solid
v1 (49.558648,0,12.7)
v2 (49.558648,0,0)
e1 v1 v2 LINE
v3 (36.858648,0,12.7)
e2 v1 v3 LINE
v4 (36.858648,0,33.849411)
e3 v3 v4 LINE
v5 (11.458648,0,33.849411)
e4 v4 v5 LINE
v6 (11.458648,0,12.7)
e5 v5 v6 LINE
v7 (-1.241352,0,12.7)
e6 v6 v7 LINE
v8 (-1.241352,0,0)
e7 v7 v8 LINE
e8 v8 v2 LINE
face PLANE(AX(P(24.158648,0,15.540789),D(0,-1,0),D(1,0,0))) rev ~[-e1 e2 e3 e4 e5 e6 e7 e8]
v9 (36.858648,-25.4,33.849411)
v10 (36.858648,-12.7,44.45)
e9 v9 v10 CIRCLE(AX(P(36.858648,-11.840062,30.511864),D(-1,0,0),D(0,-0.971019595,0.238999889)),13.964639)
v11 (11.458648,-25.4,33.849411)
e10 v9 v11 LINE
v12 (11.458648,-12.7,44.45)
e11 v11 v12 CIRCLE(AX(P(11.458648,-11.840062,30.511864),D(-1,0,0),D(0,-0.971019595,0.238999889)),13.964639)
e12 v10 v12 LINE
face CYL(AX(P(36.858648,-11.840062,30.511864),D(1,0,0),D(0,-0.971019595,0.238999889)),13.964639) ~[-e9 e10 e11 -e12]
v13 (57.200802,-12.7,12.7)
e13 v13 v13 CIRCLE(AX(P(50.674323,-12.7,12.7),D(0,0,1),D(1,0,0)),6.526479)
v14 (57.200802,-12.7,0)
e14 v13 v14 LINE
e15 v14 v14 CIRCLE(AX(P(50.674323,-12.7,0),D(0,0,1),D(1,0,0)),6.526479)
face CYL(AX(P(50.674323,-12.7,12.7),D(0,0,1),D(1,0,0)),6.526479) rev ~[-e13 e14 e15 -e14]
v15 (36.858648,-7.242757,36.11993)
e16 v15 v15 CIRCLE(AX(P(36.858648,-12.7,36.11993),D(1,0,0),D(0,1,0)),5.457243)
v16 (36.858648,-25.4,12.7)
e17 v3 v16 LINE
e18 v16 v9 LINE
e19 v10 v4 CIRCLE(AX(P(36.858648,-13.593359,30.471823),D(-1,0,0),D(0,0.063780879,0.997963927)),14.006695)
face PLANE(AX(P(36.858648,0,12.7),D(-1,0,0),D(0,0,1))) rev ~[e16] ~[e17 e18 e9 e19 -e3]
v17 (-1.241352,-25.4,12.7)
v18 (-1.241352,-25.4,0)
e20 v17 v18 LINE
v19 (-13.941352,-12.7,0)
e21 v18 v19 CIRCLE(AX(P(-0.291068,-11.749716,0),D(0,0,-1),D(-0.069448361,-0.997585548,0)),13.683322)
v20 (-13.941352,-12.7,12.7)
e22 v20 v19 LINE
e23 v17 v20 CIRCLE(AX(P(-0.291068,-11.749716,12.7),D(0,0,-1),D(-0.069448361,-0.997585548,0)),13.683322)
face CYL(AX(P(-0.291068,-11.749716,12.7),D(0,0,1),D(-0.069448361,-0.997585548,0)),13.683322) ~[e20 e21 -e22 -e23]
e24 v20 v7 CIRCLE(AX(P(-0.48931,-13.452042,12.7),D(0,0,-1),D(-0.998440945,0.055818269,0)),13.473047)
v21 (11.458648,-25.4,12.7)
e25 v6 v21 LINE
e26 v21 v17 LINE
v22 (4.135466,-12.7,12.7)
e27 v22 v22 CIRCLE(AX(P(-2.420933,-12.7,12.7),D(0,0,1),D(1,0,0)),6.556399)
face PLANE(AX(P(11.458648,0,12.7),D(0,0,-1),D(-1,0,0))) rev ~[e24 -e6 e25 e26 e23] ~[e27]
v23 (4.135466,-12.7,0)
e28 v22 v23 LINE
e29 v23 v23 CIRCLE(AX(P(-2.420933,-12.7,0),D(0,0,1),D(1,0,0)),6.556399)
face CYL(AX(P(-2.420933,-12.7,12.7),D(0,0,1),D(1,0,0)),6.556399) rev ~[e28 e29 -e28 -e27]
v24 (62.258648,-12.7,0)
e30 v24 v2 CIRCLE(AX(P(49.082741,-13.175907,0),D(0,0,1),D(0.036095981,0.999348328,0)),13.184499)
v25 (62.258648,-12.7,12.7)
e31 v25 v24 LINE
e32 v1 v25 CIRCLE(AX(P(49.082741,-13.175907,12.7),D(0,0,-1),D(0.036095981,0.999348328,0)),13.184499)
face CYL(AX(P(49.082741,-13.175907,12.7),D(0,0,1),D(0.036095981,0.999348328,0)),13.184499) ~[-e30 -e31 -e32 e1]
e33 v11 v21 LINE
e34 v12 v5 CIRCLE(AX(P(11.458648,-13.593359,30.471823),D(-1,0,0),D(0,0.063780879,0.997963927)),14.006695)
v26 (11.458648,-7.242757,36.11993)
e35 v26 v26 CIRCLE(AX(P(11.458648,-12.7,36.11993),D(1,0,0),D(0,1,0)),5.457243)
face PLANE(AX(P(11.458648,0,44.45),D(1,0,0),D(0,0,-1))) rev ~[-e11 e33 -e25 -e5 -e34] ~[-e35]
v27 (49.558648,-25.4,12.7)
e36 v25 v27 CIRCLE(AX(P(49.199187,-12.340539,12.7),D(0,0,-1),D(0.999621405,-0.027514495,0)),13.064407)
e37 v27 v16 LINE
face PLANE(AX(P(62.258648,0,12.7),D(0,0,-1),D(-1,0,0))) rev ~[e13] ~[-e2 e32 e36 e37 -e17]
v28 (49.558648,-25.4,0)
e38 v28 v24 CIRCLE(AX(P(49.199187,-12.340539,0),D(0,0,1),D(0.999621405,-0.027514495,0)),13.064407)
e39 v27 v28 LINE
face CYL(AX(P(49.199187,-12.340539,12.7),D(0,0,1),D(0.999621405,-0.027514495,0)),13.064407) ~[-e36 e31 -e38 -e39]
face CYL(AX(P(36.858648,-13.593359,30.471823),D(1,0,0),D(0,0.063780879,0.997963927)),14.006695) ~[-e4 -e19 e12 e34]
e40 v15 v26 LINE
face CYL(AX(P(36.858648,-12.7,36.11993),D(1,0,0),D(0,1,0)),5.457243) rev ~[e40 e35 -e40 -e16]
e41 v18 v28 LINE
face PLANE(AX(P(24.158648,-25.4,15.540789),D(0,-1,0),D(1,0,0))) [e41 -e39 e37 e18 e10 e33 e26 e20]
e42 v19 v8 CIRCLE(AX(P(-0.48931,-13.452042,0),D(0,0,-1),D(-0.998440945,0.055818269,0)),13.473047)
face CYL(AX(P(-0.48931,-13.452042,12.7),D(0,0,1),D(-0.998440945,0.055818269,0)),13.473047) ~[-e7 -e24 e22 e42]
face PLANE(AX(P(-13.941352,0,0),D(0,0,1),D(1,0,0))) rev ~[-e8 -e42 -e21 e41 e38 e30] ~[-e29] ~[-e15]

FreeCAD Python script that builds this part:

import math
import FreeCAD as App
import Part
import Sketcher

V = App.Vector
Q = App.Units.Quantity


def add_polygon(sketch, points):
    """Adds a closed chain of lines whose ends are joined by coincident constraints."""
    first, n = sketch.GeometryCount, len(points)
    for a, b in zip(points, points[1:] + points[:1]):
        sketch.addGeometry(Part.LineSegment(App.Vector(*a, 0), App.Vector(*b, 0)), False)
    for i in range(n):
        sketch.addConstraint(Sketcher.Constraint("Coincident", first + i, 2, first + (i + 1) % n, 1))

doc = App.newDocument("Part")
body = doc.addObject("PartDesign::Body", "Body")

# Sketch on XZ plane
sketch1 = body.newObject("Sketcher::SketchObject", "Sketch")
sketch1.AttachmentSupport = (doc.getObject("XZ_Plane"), [""])
sketch1.MapMode = "FlatFace"
add_polygon(sketch1, [(-14, 13), (-14, 0), (62, 0), (62, 13), (37, 13), (37, 44), (11, 44), (11, 13)])  # lines 0-7
sketch1.addConstraint(Sketcher.Constraint("Vertical", 0))
sketch1.addConstraint(Sketcher.Constraint("Horizontal", 1))
sketch1.addConstraint(Sketcher.Constraint("Vertical", 2))
sketch1.addConstraint(Sketcher.Constraint("Horizontal", 3))
sketch1.addConstraint(Sketcher.Constraint("Vertical", 4))
sketch1.addConstraint(Sketcher.Constraint("Horizontal", 5))
sketch1.addConstraint(Sketcher.Constraint("Vertical", 6))
sketch1.addConstraint(Sketcher.Constraint("Horizontal", 7))
sketch1.addConstraint(Sketcher.Constraint("PointOnObject", 0, 2, -1))
sketch1.addConstraint(Sketcher.Constraint("Horizontal", 3, 2, 6, 2))
sketch1.addConstraint(Sketcher.Constraint("Equal", 3, 5))
sketch1.addConstraint(Sketcher.Constraint("Equal", 5, 7))
sketch1.addConstraint(Sketcher.Constraint("DistanceX", 1, 1, 1, 2, Q("3 in")))
sketch1.addConstraint(Sketcher.Constraint("DistanceY", 0, 2, 0, 1, Q("0.5 in")))
sketch1.addConstraint(Sketcher.Constraint("DistanceY", 4, 1, 4, 2, Q("1.25 in")))
sketch1.addConstraint(Sketcher.Constraint("DistanceX", -1, 1, 3, 2, Q("36.858648 mm")))
pad1 = body.newObject("PartDesign::Pad", "Pad")
pad1.Profile = sketch1
pad1.Length = Q("1 in")

# Sketch on YZ plane
sketch2 = body.newObject("Sketcher::SketchObject", "Sketch001")
sketch2.AttachmentSupport = (doc.getObject("YZ_Plane"), [""])
sketch2.MapMode = "FlatFace"
sketch2.AttachmentOffset = App.Placement(V(0, 0, 36.858648), App.Rotation())
sketch2.addGeometry(Part.ArcOfCircle(Part.Circle(V(-12, 31, 0), V(0, 0, 1), 14), math.radians(94), math.radians(166)), False)
sketch2.addGeometry(Part.LineSegment(V(-13, 44, 0), V(-25, 44, 0)), False)
sketch2.addGeometry(Part.LineSegment(V(-25, 44, 0), V(-25, 34, 0)), False)
sketch2.addGeometry(Part.LineSegment(V(0, 44, 0), V(-13, 44, 0)), False)
sketch2.addGeometry(Part.ArcOfCircle(Part.Circle(V(-14, 30, 0), V(0, 0, 1), 14), math.radians(14), math.radians(86)), False)
sketch2.addGeometry(Part.LineSegment(V(0, 34, 0), V(0, 44, 0)), False)
sketch2.addConstraint(Sketcher.Constraint("Coincident", 0, 1, 1, 1))
sketch2.addConstraint(Sketcher.Constraint("Coincident", 1, 2, 2, 1))
sketch2.addConstraint(Sketcher.Constraint("Coincident", 2, 2, 0, 2))
sketch2.addConstraint(Sketcher.Constraint("Coincident", 3, 2, 4, 2))
sketch2.addConstraint(Sketcher.Constraint("Coincident", 4, 1, 5, 1))
sketch2.addConstraint(Sketcher.Constraint("Coincident", 5, 2, 3, 1))
sketch2.addConstraint(Sketcher.Constraint("Horizontal", 1))
sketch2.addConstraint(Sketcher.Constraint("Vertical", 2))
sketch2.addConstraint(Sketcher.Constraint("Horizontal", 3))
sketch2.addConstraint(Sketcher.Constraint("Vertical", 5))
sketch2.addConstraint(Sketcher.Constraint("Coincident", 3, 2, 0, 1))
sketch2.addConstraint(Sketcher.Constraint("PointOnObject", 4, 1, -2))
sketch2.addConstraint(Sketcher.Constraint("Horizontal", 2, 2, 4, 1))
sketch2.addConstraint(Sketcher.Constraint("Equal", 1, 3))
sketch2.addConstraint(Sketcher.Constraint("DistanceX", 1, 2, 1, 1, Q("0.5 in")))
sketch2.addConstraint(Sketcher.Constraint("DistanceY", -1, 1, 0, 1, Q("1.75 in")))
sketch2.addConstraint(Sketcher.Constraint("Radius", 0, Q("13.964639 mm")))
sketch2.addConstraint(Sketcher.Constraint("Radius", 4, Q("14.006695 mm")))
sketch2.addConstraint(Sketcher.Constraint("DistanceY", 2, 2, 2, 1, Q("10.600589 mm")))
pocket1 = body.newObject("PartDesign::Pocket", "Pocket")
pocket1.Profile = sketch2
pocket1.Length = Q("1 in")

# Sketch on YZ plane
sketch3 = body.newObject("Sketcher::SketchObject", "Sketch002")
sketch3.AttachmentSupport = (doc.getObject("YZ_Plane"), [""])
sketch3.MapMode = "FlatFace"
sketch3.AttachmentOffset = App.Placement(V(0, 0, 36.858648), App.Rotation())
sketch3.addGeometry(Part.Circle(V(-13, 36, 0), V(0, 0, 1), 5), False)
sketch3.addConstraint(Sketcher.Constraint("DistanceX", 0, 3, -1, 1, Q("0.5 in")))
sketch3.addConstraint(Sketcher.Constraint("Diameter", 0, Q("10.914486 mm")))
sketch3.addConstraint(Sketcher.Constraint("DistanceY", -1, 1, 0, 3, Q("36.11993 mm")))
pocket2 = body.newObject("PartDesign::Pocket", "Pocket001")
pocket2.Profile = sketch3
pocket2.Length = Q("1 in")

# Sketch on XY plane
sketch4 = body.newObject("Sketcher::SketchObject", "Sketch003")
sketch4.AttachmentSupport = (doc.getObject("XY_Plane"), [""])
sketch4.MapMode = "FlatFace"
sketch4.AttachmentOffset = App.Placement(V(0, 0, 0.5 * 25.4), App.Rotation())
sketch4.addGeometry(Part.LineSegment(V(-14, 0, 0), V(-14, -13, 0)), False)
sketch4.addGeometry(Part.ArcOfCircle(Part.Circle(V(0, -13, 0), V(0, 0, 1), 13), math.radians(93), math.radians(177)), False)
sketch4.addGeometry(Part.LineSegment(V(-1, 0, 0), V(-14, 0, 0)), False)
sketch4.addGeometry(Part.ArcOfCircle(Part.Circle(V(0, -12, 0), V(0, 0, 1), 14), math.radians(-176), math.radians(-94)), False)
sketch4.addGeometry(Part.LineSegment(V(-14, -13, 0), V(-14, -25, 0)), False)
sketch4.addGeometry(Part.LineSegment(V(-14, -25, 0), V(-1, -25, 0)), False)
sketch4.addGeometry(Part.Circle(V(-2, -13, 0), V(0, 0, 1), 7), False)
sketch4.addConstraint(Sketcher.Constraint("Coincident", 0, 2, 1, 2))
sketch4.addConstraint(Sketcher.Constraint("Coincident", 1, 1, 2, 1))
sketch4.addConstraint(Sketcher.Constraint("Coincident", 2, 2, 0, 1))
sketch4.addConstraint(Sketcher.Constraint("Coincident", 3, 1, 4, 1))
sketch4.addConstraint(Sketcher.Constraint("Coincident", 4, 2, 5, 1))
sketch4.addConstraint(Sketcher.Constraint("Coincident", 5, 2, 3, 2))
sketch4.addConstraint(Sketcher.Constraint("Vertical", 0))
sketch4.addConstraint(Sketcher.Constraint("Horizontal", 2))
sketch4.addConstraint(Sketcher.Constraint("Vertical", 4))
sketch4.addConstraint(Sketcher.Constraint("Horizontal", 5))
sketch4.addConstraint(Sketcher.Constraint("Coincident", 3, 1, 0, 2))
sketch4.addConstraint(Sketcher.Constraint("PointOnObject", 1, 1, -1))
sketch4.addConstraint(Sketcher.Constraint("Horizontal", 6, 3, 0, 2))
sketch4.addConstraint(Sketcher.Constraint("Vertical", 1, 1, 5, 2))
sketch4.addConstraint(Sketcher.Constraint("Equal", 5, 0))
sketch4.addConstraint(Sketcher.Constraint("Equal", 0, 4))
sketch4.addConstraint(Sketcher.Constraint("DistanceX", 2, 2, 2, 1, Q("0.5 in")))
sketch4.addConstraint(Sketcher.Constraint("Diameter", 6, Q("13.112798 mm")))
sketch4.addConstraint(Sketcher.Constraint("Radius", 1, Q("13.473047 mm")))
sketch4.addConstraint(Sketcher.Constraint("Radius", 3, Q("13.683322 mm")))
sketch4.addConstraint(Sketcher.Constraint("DistanceX", 1, 3, -1, 1, Q("0.48931 mm")))
sketch4.addConstraint(Sketcher.Constraint("DistanceX", 0, 2, 6, 3, Q("11.520419 mm")))
pocket3 = body.newObject("PartDesign::Pocket", "Pocket002")
pocket3.Profile = sketch4
pocket3.Length = Q("0.5 in")

# Sketch on XY plane
sketch5 = body.newObject("Sketcher::SketchObject", "Sketch004")
sketch5.AttachmentSupport = (doc.getObject("XY_Plane"), [""])
sketch5.MapMode = "FlatFace"
sketch5.AttachmentOffset = App.Placement(V(0, 0, 0.5 * 25.4), App.Rotation())
sketch5.addGeometry(Part.Circle(V(51, -13, 0), V(0, 0, 1), 7), False)
sketch5.addGeometry(Part.ArcOfCircle(Part.Circle(V(49, -13, 0), V(0, 0, 1), 13), math.radians(2), math.radians(88)), False)
sketch5.addGeometry(Part.LineSegment(V(62, -13, 0), V(62, 0, 0)), False)
sketch5.addGeometry(Part.LineSegment(V(62, 0, 0), V(50, 0, 0)), False)
sketch5.addGeometry(Part.LineSegment(V(62, -25, 0), V(62, -13, 0)), False)
sketch5.addGeometry(Part.ArcOfCircle(Part.Circle(V(49, -12, 0), V(0, 0, 1), 13), math.radians(-88), math.radians(-2)), False)
sketch5.addGeometry(Part.LineSegment(V(50, -25, 0), V(62, -25, 0)), False)
sketch5.addConstraint(Sketcher.Constraint("Coincident", 1, 1, 2, 1))
sketch5.addConstraint(Sketcher.Constraint("Coincident", 2, 2, 3, 1))
sketch5.addConstraint(Sketcher.Constraint("Coincident", 3, 2, 1, 2))
sketch5.addConstraint(Sketcher.Constraint("Coincident", 4, 2, 5, 2))
sketch5.addConstraint(Sketcher.Constraint("Coincident", 5, 1, 6, 1))
sketch5.addConstraint(Sketcher.Constraint("Coincident", 6, 2, 4, 1))
sketch5.addConstraint(Sketcher.Constraint("Vertical", 2))
sketch5.addConstraint(Sketcher.Constraint("Horizontal", 3))
sketch5.addConstraint(Sketcher.Constraint("Vertical", 4))
sketch5.addConstraint(Sketcher.Constraint("Horizontal", 6))
sketch5.addConstraint(Sketcher.Constraint("Coincident", 4, 2, 1, 1))
sketch5.addConstraint(Sketcher.Constraint("PointOnObject", 2, 2, -1))
sketch5.addConstraint(Sketcher.Constraint("Horizontal", 0, 3, 1, 1))
sketch5.addConstraint(Sketcher.Constraint("Vertical", 3, 2, 5, 1))
sketch5.addConstraint(Sketcher.Constraint("Equal", 6, 2))
sketch5.addConstraint(Sketcher.Constraint("Equal", 2, 4))
sketch5.addConstraint(Sketcher.Constraint("DistanceX", 3, 2, 3, 1, Q("0.5 in")))
sketch5.addConstraint(Sketcher.Constraint("Radius", 1, Q("13.184499 mm")))
sketch5.addConstraint(Sketcher.Constraint("Diameter", 0, Q("13.052958 mm")))
sketch5.addConstraint(Sketcher.Constraint("Radius", 5, Q("13.064407 mm")))
sketch5.addConstraint(Sketcher.Constraint("DistanceX", -1, 1, 1, 3, Q("49.082741 mm")))
sketch5.addConstraint(Sketcher.Constraint("DistanceX", -1, 1, 0, 3, Q("50.674323 mm")))
pocket4 = body.newObject("PartDesign::Pocket", "Pocket003")
pocket4.Profile = sketch5
pocket4.Length = Q("1 in")

doc.recompute()
